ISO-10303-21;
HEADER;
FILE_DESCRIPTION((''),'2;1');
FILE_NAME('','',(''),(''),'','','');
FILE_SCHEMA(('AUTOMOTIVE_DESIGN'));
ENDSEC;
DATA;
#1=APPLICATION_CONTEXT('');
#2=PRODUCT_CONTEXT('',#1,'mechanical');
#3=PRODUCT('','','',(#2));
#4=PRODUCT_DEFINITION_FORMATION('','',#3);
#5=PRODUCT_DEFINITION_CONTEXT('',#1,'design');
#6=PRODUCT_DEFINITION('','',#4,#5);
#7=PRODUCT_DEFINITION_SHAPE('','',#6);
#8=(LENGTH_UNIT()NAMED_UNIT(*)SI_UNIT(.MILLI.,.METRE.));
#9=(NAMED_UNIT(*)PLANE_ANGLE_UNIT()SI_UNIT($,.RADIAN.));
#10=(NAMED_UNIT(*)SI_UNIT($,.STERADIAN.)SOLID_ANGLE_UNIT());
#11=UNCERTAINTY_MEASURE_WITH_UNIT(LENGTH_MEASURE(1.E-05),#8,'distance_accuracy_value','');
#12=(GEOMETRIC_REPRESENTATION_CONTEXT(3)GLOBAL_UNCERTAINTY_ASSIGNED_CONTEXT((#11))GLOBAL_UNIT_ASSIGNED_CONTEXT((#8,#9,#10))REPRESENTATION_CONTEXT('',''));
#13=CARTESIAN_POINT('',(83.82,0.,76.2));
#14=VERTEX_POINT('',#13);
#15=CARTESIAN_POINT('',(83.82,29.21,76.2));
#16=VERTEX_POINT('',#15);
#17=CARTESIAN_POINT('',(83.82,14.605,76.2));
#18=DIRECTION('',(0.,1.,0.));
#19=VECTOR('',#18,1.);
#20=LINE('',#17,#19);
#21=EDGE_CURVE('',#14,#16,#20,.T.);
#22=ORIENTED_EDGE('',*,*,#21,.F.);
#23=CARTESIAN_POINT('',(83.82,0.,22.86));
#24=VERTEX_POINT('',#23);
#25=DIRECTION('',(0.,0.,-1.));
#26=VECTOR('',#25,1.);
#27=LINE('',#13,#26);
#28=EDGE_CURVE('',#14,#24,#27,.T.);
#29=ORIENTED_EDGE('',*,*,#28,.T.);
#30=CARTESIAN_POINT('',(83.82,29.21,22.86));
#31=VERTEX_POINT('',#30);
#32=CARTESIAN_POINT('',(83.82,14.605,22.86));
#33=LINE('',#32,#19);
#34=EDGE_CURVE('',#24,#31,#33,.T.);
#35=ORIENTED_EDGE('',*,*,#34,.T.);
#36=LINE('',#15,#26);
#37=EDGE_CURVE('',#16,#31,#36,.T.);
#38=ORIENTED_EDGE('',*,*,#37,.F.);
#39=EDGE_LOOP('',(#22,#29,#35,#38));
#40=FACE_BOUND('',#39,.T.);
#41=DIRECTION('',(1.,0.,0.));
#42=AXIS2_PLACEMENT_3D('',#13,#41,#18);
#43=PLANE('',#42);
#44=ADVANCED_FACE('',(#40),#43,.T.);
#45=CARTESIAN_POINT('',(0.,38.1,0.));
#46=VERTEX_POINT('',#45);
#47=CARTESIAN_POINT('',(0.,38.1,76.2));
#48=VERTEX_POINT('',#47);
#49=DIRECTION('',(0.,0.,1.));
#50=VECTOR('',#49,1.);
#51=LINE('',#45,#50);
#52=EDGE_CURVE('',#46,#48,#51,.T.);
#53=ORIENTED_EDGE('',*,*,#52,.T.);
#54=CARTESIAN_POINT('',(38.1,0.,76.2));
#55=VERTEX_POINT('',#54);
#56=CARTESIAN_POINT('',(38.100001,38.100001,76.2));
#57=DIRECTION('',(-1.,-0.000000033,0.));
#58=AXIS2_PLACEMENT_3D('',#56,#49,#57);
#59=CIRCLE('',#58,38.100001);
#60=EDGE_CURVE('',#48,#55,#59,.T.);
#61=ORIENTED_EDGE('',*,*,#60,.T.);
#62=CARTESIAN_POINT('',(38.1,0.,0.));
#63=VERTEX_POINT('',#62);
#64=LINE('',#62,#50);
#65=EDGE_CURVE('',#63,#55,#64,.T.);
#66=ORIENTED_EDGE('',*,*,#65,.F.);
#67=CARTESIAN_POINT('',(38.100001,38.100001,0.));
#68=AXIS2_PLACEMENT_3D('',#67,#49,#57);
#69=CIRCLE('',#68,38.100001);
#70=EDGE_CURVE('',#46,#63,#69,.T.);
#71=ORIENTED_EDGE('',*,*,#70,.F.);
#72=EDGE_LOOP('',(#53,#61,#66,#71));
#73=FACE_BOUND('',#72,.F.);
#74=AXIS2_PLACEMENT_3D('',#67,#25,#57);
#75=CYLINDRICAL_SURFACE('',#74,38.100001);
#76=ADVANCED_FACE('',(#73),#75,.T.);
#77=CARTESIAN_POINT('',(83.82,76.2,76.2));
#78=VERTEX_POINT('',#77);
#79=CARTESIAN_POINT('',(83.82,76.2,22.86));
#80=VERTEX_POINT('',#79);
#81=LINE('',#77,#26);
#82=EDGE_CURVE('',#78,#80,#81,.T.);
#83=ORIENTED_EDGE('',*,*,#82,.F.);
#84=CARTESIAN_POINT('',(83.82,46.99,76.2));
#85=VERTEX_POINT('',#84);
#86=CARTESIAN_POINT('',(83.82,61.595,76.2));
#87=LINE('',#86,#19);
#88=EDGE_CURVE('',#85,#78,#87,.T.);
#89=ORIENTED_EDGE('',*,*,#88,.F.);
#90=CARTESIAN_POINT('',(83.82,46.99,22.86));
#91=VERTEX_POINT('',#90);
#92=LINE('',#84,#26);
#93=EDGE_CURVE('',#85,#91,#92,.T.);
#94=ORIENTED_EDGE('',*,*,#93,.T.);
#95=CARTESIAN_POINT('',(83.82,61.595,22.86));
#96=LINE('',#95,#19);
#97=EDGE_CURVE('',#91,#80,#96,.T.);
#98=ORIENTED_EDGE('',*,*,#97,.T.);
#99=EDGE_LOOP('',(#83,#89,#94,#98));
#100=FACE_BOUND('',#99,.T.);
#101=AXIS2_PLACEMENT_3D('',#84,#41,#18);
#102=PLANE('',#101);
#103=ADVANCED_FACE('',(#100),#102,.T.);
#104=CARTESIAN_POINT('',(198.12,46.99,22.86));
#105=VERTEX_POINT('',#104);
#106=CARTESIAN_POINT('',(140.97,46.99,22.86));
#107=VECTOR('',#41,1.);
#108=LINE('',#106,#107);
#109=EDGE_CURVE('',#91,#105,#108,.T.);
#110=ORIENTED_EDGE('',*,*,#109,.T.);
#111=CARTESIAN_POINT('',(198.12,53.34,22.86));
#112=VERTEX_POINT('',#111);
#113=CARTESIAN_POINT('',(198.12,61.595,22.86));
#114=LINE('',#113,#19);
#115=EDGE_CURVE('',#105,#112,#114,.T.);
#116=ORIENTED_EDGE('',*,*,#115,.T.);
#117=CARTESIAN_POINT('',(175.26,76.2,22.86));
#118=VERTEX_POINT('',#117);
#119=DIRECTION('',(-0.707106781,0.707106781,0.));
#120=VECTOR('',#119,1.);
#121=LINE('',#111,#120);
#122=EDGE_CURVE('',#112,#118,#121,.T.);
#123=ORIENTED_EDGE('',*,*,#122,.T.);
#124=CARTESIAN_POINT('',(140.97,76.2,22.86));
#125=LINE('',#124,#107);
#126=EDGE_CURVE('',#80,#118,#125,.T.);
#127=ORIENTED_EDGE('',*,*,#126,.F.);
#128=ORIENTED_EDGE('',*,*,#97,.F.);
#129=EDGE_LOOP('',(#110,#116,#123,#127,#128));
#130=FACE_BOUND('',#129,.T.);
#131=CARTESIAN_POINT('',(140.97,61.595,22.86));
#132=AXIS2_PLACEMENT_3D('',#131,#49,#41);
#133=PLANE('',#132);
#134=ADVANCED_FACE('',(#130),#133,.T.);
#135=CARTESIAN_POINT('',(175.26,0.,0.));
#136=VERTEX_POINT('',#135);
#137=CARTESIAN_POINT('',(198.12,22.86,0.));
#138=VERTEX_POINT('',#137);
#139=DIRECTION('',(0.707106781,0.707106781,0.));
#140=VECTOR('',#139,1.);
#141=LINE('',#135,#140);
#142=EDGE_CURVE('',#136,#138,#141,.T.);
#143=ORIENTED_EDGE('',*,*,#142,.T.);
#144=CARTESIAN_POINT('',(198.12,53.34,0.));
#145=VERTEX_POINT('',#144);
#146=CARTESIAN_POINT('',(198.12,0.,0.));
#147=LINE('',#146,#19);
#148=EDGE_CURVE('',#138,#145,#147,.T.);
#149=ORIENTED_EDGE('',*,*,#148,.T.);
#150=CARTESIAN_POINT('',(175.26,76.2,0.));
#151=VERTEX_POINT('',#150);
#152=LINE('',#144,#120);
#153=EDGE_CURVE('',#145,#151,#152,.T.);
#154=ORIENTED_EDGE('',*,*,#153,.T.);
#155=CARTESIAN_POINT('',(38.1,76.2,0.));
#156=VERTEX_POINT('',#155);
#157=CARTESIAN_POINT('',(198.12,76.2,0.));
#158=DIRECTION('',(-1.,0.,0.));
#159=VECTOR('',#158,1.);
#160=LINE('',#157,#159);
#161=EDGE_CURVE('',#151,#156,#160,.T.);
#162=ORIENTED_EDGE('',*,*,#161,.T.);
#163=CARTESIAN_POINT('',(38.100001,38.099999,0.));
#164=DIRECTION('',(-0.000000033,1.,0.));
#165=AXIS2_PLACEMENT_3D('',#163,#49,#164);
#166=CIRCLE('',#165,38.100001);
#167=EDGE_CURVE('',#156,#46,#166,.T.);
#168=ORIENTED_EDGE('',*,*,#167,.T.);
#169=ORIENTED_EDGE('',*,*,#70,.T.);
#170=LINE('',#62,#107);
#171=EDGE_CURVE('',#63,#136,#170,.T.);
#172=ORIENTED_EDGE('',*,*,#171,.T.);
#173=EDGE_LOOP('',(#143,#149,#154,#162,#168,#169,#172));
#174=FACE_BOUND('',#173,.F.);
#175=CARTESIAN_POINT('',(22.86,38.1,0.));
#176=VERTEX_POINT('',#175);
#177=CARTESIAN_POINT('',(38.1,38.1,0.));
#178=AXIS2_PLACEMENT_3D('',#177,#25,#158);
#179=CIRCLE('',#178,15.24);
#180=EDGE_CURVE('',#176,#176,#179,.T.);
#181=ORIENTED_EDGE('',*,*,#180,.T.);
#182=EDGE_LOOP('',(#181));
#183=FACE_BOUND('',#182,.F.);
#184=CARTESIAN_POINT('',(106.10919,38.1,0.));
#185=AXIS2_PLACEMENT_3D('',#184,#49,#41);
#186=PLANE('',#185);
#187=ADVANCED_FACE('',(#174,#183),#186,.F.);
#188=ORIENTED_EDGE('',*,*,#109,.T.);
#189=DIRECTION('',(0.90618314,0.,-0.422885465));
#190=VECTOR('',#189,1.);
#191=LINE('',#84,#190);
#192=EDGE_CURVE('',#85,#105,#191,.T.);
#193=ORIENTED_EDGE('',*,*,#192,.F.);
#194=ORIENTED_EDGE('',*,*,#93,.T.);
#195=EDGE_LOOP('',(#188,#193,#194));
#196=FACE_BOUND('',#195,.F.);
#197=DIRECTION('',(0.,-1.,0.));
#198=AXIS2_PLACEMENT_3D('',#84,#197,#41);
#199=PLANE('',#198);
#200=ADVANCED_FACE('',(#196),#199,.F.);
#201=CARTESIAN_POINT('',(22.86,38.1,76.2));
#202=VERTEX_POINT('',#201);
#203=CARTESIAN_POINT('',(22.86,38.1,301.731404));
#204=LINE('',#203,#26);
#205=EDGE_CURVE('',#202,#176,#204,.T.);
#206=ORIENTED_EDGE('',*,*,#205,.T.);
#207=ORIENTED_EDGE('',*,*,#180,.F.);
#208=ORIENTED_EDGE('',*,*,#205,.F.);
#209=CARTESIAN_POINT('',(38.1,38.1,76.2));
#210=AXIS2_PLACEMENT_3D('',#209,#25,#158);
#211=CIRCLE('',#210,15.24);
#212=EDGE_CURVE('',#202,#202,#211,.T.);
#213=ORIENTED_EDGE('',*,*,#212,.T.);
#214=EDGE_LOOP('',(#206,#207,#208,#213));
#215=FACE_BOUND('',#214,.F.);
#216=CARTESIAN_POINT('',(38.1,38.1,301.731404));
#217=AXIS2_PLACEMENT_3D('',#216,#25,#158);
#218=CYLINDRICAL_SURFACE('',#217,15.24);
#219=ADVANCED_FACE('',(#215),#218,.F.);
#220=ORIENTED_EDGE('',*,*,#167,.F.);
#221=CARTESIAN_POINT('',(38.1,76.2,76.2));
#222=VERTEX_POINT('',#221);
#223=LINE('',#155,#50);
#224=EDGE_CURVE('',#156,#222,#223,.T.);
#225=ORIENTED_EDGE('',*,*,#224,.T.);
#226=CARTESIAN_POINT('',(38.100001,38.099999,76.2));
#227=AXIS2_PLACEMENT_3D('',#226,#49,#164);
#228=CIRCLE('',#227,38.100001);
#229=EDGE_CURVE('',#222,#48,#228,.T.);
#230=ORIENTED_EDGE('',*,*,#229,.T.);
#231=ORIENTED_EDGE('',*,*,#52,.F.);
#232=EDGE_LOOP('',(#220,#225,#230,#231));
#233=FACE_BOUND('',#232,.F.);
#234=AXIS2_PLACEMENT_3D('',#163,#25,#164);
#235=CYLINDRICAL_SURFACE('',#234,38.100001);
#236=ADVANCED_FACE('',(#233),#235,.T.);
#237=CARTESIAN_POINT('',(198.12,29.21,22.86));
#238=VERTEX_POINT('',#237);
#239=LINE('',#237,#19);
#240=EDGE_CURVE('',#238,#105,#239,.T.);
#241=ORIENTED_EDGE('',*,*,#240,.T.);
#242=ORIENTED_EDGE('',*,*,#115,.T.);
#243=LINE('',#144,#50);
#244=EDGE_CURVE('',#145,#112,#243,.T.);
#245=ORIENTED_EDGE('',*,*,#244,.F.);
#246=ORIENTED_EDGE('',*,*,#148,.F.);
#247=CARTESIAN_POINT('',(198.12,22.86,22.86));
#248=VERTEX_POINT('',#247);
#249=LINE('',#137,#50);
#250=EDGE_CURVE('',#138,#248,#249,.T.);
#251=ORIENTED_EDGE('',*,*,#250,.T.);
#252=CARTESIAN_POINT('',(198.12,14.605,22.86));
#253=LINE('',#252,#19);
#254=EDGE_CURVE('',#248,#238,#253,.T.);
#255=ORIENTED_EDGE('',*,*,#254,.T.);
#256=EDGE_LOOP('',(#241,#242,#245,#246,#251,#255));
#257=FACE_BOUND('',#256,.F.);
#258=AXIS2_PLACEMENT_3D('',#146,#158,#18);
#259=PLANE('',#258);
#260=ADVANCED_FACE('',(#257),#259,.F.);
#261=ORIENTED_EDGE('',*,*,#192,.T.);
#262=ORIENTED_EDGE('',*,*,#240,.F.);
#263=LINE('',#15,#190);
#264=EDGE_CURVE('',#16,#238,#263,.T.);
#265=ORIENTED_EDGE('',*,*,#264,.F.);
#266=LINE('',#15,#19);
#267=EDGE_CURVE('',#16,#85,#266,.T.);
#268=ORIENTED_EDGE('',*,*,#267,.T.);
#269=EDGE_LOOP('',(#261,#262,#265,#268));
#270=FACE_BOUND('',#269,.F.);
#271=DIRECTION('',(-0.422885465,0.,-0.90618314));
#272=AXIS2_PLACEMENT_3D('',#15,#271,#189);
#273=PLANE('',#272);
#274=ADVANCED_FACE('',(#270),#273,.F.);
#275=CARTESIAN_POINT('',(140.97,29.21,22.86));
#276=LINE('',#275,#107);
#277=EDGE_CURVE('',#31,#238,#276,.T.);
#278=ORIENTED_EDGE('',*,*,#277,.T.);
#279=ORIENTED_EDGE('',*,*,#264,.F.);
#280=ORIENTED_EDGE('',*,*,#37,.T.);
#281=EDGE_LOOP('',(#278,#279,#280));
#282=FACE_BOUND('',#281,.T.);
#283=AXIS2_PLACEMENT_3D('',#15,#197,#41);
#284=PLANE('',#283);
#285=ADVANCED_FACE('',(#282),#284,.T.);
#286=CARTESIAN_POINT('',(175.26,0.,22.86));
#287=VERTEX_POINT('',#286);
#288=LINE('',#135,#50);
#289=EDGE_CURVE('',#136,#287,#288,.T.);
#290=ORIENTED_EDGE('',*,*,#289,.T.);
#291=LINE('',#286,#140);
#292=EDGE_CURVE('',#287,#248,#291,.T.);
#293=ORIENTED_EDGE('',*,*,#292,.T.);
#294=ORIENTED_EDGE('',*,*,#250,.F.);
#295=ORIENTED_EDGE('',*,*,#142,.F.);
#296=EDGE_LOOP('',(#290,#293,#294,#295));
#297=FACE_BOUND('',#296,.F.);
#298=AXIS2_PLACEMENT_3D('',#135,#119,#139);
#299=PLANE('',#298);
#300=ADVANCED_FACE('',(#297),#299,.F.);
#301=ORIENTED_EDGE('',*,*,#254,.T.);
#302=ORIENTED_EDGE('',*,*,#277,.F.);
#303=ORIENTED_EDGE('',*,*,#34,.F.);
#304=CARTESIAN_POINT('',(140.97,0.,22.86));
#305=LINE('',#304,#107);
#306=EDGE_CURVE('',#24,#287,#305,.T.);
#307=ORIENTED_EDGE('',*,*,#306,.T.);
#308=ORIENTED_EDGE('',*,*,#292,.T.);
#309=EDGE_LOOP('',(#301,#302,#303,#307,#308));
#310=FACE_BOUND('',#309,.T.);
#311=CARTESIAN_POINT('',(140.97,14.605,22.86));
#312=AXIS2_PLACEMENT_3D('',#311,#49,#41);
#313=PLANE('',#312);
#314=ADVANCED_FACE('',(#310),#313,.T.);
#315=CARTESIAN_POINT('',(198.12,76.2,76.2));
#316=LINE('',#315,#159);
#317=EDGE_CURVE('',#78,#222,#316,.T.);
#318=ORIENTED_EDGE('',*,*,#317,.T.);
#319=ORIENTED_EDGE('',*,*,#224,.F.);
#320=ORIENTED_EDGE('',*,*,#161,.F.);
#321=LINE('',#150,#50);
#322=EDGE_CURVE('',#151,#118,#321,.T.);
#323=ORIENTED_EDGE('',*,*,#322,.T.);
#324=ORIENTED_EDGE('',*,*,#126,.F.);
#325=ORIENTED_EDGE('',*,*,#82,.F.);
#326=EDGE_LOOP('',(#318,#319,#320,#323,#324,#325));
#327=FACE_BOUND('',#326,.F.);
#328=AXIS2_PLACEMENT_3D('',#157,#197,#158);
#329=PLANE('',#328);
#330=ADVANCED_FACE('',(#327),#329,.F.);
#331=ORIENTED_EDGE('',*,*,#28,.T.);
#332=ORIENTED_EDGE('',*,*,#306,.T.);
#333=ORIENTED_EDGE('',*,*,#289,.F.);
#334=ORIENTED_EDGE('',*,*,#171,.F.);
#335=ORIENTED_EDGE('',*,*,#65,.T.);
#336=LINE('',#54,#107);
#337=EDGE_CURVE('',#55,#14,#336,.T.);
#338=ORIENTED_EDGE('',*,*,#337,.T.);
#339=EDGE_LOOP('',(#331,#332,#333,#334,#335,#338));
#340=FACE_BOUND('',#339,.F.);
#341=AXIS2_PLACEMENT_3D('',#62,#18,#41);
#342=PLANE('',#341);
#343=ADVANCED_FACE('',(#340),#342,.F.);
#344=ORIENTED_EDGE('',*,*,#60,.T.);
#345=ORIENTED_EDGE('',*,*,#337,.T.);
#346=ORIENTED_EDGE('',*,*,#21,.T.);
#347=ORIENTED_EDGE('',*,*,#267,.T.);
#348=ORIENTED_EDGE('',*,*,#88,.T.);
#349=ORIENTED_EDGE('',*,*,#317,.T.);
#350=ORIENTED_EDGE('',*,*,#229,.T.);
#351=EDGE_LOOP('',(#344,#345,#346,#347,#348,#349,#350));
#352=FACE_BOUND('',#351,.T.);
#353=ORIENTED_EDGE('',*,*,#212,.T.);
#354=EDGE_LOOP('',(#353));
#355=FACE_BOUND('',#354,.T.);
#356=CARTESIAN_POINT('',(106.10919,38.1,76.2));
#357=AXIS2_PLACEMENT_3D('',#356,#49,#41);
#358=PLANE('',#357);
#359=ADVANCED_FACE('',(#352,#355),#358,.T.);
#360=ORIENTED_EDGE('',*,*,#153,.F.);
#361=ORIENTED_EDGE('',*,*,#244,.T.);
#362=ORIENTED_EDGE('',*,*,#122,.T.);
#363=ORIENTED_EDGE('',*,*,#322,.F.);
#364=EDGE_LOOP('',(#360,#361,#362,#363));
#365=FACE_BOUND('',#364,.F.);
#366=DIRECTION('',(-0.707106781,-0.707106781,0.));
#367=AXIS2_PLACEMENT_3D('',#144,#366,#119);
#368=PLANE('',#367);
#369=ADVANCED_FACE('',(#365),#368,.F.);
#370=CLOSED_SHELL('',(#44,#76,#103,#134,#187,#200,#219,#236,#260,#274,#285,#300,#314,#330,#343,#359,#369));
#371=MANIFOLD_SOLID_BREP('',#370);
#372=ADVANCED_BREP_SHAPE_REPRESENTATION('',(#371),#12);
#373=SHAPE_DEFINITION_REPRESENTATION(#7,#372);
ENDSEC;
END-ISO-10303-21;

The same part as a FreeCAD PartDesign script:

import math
import FreeCAD as App
import Part
import Sketcher
from FreeCAD import Vector
Q = App.Units.Quantity


def add_polygon(sketch, points):
    """Adds a closed chain of lines whose ends are joined by coincident constraints."""
    first, n = sketch.GeometryCount, len(points)
    for a, b in zip(points, points[1:] + points[:1]):
        sketch.addGeometry(Part.LineSegment(App.Vector(*a, 0), App.Vector(*b, 0)), False)
    for i in range(n):
        sketch.addConstraint(Sketcher.Constraint("Coincident", first + i, 2, first + (i + 1) % n, 1))

doc = App.newDocument("Part")
body = doc.addObject("PartDesign::Body", "Body")

# Sketch on XY plane
sketch1 = body.newObject("Sketcher::SketchObject", "Sketch")
sketch1.AttachmentSupport = (doc.getObject("XY_Plane"), [""])
sketch1.MapMode = "FlatFace"
sketch1.addGeometry(Part.ArcOfCircle(Part.Circle(Vector(38, 38, 0), Vector(0, 0, 1), 38), math.radians(-180), math.radians(-90)), False)
sketch1.addGeometry(Part.LineSegment(Vector(38, 0, 0), Vector(198, 0, 0)), False)
sketch1.addGeometry(Part.LineSegment(Vector(198, 0, 0), Vector(198, 76, 0)), False)
sketch1.addGeometry(Part.LineSegment(Vector(198, 76, 0), Vector(38, 76, 0)), False)
sketch1.addGeometry(Part.ArcOfCircle(Part.Circle(Vector(38, 38, 0), Vector(0, 0, 1), 38), math.radians(90), math.radians(180)), False)
sketch1.addConstraint(Sketcher.Constraint("Tangent", 0, 2, 1, 1))
sketch1.addConstraint(Sketcher.Constraint("Coincident", 1, 2, 2, 1))
sketch1.addConstraint(Sketcher.Constraint("Coincident", 2, 2, 3, 1))
sketch1.addConstraint(Sketcher.Constraint("Tangent", 3, 2, 4, 1))
sketch1.addConstraint(Sketcher.Constraint("Tangent", 4, 2, 0, 1))
sketch1.addConstraint(Sketcher.Constraint("Horizontal", 1))
sketch1.addConstraint(Sketcher.Constraint("Vertical", 2))
sketch1.addConstraint(Sketcher.Constraint("Horizontal", 3))
sketch1.addConstraint(Sketcher.Constraint("Equal", 0, 4))
sketch1.addConstraint(Sketcher.Constraint("PointOnObject", 0, 2, -1))
sketch1.addConstraint(Sketcher.Constraint("PointOnObject", 4, 2, -2))
sketch1.addConstraint(Sketcher.Constraint("Horizontal", 0, 3, 4, 2))
sketch1.addConstraint(Sketcher.Constraint("Radius", 0, Q("1.5 in")))
sketch1.addConstraint(Sketcher.Constraint("DistanceX", 1, 1, 1, 2, Q("6.3 in")))
pad1 = body.newObject("PartDesign::Pad", "Pad")
pad1.Profile = sketch1
pad1.Length = Q("3 in")

# Sketch on XY plane
sketch2 = body.newObject("Sketcher::SketchObject", "Sketch001")
sketch2.AttachmentSupport = (doc.getObject("XY_Plane"), [""])
sketch2.MapMode = "FlatFace"
sketch2.AttachmentOffset = App.Placement(Vector(0, 0, 3 * 25.4), App.Rotation())
sketch2.addGeometry(Part.Circle(Vector(38, 38, 0), Vector(0, 0, 1), 15), False)
sketch2.addConstraint(Sketcher.Constraint("Diameter", 0, Q("1.2 in")))
sketch2.addConstraint(Sketcher.Constraint("DistanceX", -1, 1, 0, 3, Q("1.5 in")))
sketch2.addConstraint(Sketcher.Constraint("DistanceY", -1, 1, 0, 3, Q("1.5 in")))
doc.recompute()
hole = body.newObject("PartDesign::Hole", "Hole")
hole.Profile = sketch2
hole.ThreadType = "None"
hole.Diameter = Q("1.2 in")
hole.DepthType = "ThroughAll"

# Sketch on XY plane
sketch3 = body.newObject("Sketcher::SketchObject", "Sketch002")
sketch3.AttachmentSupport = (doc.getObject("XY_Plane"), [""])
sketch3.MapMode = "FlatFace"
sketch3.AttachmentOffset = App.Placement(Vector(0, 0, 3 * 25.4), App.Rotation())
add_polygon(sketch3, [(84, 76), (84, 47), (198, 47), (198, 76)])  # lines 0-3
add_polygon(sketch3, [(84, 29), (84, 0), (198, 0), (198, 29)])  # lines 4-7
sketch3.addConstraint(Sketcher.Constraint("Vertical", 0))
sketch3.addConstraint(Sketcher.Constraint("Horizontal", 1))
sketch3.addConstraint(Sketcher.Constraint("Vertical", 2))
sketch3.addConstraint(Sketcher.Constraint("Horizontal", 3))
sketch3.addConstraint(Sketcher.Constraint("Vertical", 4))
sketch3.addConstraint(Sketcher.Constraint("Horizontal", 5))
sketch3.addConstraint(Sketcher.Constraint("Vertical", 6))
sketch3.addConstraint(Sketcher.Constraint("Horizontal", 7))
sketch3.addConstraint(Sketcher.Constraint("PointOnObject", 4, 2, -1))
sketch3.addConstraint(Sketcher.Constraint("Vertical", 3, 2, 4, 2))
sketch3.addConstraint(Sketcher.Constraint("Vertical", 2, 2, 5, 2))
sketch3.addConstraint(Sketcher.Constraint("Equal", 2, 4))
sketch3.addConstraint(Sketcher.Constraint("DistanceX", 1, 1, 1, 2, Q("4.5 in")))
sketch3.addConstraint(Sketcher.Constraint("DistanceY", -1, 1, 2, 2, Q("3 in")))
sketch3.addConstraint(Sketcher.Constraint("DistanceY", 0, 2, 0, 1, Q("1.15 in")))
sketch3.addConstraint(Sketcher.Constraint("DistanceX", -1, 1, 0, 2, Q("3.3 in")))
pocket1 = body.newObject("PartDesign::Pocket", "Pocket")
pocket1.Profile = sketch3
pocket1.Length = Q("2.1 in")

# Sketch on XZ plane
sketch4 = body.newObject("Sketcher::SketchObject", "Sketch003")
sketch4.AttachmentSupport = (doc.getObject("XZ_Plane"), [""])
sketch4.MapMode = "FlatFace"
sketch4.AttachmentOffset = App.Placement(Vector(0, 0, -1.15 * 25.4), App.Rotation())
add_polygon(sketch4, [(198, 76), (84, 76), (198, 23)])  # lines 0-2
sketch4.addConstraint(Sketcher.Constraint("Horizontal", 0))
sketch4.addConstraint(Sketcher.Constraint("Vertical", 2))
sketch4.addConstraint(Sketcher.Constraint("DistanceX", 0, 2, 0, 1, Q("4.5 in")))
sketch4.addConstraint(Sketcher.Constraint("DistanceY", 2, 1, 2, 2, Q("2.1 in")))
sketch4.addConstraint(Sketcher.Constraint("DistanceY", -1, 1, 0, 2, Q("3 in")))
sketch4.addConstraint(Sketcher.Constraint("DistanceX", -1, 1, 0, 2, Q("3.3 in")))
pocket2 = body.newObject("PartDesign::Pocket", "Pocket001")
pocket2.Profile = sketch4
pocket2.Length = Q("0.7 in")

# Sketch on XY plane
sketch5 = body.newObject("Sketcher::SketchObject", "Sketch004")
sketch5.AttachmentSupport = (doc.getObject("XY_Plane"), [""])
sketch5.MapMode = "FlatFace"
add_polygon(sketch5, [(198, 0), (175, 0), (198, 23)])  # lines 0-2
add_polygon(sketch5, [(198, 76), (198, 53), (175, 76)])  # lines 3-5
sketch5.addConstraint(Sketcher.Constraint("Horizontal", 0))
sketch5.addConstraint(Sketcher.Constraint("Vertical", 2))
sketch5.addConstraint(Sketcher.Constraint("Vertical", 3))
sketch5.addConstraint(Sketcher.Constraint("Horizontal", 5))
sketch5.addConstraint(Sketcher.Constraint("PointOnObject", 0, 2, -1))
sketch5.addConstraint(Sketcher.Constraint("Perpendicular", 1, 4))
sketch5.addConstraint(Sketcher.Constraint("Vertical", 2, 2, 3, 2))
sketch5.addConstraint(Sketcher.Constraint("Vertical", 0, 2, 4, 2))
sketch5.addConstraint(Sketcher.Constraint("Equal", 5, 2))
sketch5.addConstraint(Sketcher.Constraint("DistanceX", 0, 2, 0, 1, Q("0.9 in")))
sketch5.addConstraint(Sketcher.Constraint("DistanceY", -1, 1, 4, 2, Q("3 in")))
sketch5.addConstraint(Sketcher.Constraint("DistanceX", -1, 1, 0, 2, Q("6.9 in")))
pocket3 = body.newObject("PartDesign::Pocket", "Pocket002")
pocket3.Profile = sketch5
pocket3.Length = Q("0.9 in")
pocket3.Reversed = True

doc.recompute()
